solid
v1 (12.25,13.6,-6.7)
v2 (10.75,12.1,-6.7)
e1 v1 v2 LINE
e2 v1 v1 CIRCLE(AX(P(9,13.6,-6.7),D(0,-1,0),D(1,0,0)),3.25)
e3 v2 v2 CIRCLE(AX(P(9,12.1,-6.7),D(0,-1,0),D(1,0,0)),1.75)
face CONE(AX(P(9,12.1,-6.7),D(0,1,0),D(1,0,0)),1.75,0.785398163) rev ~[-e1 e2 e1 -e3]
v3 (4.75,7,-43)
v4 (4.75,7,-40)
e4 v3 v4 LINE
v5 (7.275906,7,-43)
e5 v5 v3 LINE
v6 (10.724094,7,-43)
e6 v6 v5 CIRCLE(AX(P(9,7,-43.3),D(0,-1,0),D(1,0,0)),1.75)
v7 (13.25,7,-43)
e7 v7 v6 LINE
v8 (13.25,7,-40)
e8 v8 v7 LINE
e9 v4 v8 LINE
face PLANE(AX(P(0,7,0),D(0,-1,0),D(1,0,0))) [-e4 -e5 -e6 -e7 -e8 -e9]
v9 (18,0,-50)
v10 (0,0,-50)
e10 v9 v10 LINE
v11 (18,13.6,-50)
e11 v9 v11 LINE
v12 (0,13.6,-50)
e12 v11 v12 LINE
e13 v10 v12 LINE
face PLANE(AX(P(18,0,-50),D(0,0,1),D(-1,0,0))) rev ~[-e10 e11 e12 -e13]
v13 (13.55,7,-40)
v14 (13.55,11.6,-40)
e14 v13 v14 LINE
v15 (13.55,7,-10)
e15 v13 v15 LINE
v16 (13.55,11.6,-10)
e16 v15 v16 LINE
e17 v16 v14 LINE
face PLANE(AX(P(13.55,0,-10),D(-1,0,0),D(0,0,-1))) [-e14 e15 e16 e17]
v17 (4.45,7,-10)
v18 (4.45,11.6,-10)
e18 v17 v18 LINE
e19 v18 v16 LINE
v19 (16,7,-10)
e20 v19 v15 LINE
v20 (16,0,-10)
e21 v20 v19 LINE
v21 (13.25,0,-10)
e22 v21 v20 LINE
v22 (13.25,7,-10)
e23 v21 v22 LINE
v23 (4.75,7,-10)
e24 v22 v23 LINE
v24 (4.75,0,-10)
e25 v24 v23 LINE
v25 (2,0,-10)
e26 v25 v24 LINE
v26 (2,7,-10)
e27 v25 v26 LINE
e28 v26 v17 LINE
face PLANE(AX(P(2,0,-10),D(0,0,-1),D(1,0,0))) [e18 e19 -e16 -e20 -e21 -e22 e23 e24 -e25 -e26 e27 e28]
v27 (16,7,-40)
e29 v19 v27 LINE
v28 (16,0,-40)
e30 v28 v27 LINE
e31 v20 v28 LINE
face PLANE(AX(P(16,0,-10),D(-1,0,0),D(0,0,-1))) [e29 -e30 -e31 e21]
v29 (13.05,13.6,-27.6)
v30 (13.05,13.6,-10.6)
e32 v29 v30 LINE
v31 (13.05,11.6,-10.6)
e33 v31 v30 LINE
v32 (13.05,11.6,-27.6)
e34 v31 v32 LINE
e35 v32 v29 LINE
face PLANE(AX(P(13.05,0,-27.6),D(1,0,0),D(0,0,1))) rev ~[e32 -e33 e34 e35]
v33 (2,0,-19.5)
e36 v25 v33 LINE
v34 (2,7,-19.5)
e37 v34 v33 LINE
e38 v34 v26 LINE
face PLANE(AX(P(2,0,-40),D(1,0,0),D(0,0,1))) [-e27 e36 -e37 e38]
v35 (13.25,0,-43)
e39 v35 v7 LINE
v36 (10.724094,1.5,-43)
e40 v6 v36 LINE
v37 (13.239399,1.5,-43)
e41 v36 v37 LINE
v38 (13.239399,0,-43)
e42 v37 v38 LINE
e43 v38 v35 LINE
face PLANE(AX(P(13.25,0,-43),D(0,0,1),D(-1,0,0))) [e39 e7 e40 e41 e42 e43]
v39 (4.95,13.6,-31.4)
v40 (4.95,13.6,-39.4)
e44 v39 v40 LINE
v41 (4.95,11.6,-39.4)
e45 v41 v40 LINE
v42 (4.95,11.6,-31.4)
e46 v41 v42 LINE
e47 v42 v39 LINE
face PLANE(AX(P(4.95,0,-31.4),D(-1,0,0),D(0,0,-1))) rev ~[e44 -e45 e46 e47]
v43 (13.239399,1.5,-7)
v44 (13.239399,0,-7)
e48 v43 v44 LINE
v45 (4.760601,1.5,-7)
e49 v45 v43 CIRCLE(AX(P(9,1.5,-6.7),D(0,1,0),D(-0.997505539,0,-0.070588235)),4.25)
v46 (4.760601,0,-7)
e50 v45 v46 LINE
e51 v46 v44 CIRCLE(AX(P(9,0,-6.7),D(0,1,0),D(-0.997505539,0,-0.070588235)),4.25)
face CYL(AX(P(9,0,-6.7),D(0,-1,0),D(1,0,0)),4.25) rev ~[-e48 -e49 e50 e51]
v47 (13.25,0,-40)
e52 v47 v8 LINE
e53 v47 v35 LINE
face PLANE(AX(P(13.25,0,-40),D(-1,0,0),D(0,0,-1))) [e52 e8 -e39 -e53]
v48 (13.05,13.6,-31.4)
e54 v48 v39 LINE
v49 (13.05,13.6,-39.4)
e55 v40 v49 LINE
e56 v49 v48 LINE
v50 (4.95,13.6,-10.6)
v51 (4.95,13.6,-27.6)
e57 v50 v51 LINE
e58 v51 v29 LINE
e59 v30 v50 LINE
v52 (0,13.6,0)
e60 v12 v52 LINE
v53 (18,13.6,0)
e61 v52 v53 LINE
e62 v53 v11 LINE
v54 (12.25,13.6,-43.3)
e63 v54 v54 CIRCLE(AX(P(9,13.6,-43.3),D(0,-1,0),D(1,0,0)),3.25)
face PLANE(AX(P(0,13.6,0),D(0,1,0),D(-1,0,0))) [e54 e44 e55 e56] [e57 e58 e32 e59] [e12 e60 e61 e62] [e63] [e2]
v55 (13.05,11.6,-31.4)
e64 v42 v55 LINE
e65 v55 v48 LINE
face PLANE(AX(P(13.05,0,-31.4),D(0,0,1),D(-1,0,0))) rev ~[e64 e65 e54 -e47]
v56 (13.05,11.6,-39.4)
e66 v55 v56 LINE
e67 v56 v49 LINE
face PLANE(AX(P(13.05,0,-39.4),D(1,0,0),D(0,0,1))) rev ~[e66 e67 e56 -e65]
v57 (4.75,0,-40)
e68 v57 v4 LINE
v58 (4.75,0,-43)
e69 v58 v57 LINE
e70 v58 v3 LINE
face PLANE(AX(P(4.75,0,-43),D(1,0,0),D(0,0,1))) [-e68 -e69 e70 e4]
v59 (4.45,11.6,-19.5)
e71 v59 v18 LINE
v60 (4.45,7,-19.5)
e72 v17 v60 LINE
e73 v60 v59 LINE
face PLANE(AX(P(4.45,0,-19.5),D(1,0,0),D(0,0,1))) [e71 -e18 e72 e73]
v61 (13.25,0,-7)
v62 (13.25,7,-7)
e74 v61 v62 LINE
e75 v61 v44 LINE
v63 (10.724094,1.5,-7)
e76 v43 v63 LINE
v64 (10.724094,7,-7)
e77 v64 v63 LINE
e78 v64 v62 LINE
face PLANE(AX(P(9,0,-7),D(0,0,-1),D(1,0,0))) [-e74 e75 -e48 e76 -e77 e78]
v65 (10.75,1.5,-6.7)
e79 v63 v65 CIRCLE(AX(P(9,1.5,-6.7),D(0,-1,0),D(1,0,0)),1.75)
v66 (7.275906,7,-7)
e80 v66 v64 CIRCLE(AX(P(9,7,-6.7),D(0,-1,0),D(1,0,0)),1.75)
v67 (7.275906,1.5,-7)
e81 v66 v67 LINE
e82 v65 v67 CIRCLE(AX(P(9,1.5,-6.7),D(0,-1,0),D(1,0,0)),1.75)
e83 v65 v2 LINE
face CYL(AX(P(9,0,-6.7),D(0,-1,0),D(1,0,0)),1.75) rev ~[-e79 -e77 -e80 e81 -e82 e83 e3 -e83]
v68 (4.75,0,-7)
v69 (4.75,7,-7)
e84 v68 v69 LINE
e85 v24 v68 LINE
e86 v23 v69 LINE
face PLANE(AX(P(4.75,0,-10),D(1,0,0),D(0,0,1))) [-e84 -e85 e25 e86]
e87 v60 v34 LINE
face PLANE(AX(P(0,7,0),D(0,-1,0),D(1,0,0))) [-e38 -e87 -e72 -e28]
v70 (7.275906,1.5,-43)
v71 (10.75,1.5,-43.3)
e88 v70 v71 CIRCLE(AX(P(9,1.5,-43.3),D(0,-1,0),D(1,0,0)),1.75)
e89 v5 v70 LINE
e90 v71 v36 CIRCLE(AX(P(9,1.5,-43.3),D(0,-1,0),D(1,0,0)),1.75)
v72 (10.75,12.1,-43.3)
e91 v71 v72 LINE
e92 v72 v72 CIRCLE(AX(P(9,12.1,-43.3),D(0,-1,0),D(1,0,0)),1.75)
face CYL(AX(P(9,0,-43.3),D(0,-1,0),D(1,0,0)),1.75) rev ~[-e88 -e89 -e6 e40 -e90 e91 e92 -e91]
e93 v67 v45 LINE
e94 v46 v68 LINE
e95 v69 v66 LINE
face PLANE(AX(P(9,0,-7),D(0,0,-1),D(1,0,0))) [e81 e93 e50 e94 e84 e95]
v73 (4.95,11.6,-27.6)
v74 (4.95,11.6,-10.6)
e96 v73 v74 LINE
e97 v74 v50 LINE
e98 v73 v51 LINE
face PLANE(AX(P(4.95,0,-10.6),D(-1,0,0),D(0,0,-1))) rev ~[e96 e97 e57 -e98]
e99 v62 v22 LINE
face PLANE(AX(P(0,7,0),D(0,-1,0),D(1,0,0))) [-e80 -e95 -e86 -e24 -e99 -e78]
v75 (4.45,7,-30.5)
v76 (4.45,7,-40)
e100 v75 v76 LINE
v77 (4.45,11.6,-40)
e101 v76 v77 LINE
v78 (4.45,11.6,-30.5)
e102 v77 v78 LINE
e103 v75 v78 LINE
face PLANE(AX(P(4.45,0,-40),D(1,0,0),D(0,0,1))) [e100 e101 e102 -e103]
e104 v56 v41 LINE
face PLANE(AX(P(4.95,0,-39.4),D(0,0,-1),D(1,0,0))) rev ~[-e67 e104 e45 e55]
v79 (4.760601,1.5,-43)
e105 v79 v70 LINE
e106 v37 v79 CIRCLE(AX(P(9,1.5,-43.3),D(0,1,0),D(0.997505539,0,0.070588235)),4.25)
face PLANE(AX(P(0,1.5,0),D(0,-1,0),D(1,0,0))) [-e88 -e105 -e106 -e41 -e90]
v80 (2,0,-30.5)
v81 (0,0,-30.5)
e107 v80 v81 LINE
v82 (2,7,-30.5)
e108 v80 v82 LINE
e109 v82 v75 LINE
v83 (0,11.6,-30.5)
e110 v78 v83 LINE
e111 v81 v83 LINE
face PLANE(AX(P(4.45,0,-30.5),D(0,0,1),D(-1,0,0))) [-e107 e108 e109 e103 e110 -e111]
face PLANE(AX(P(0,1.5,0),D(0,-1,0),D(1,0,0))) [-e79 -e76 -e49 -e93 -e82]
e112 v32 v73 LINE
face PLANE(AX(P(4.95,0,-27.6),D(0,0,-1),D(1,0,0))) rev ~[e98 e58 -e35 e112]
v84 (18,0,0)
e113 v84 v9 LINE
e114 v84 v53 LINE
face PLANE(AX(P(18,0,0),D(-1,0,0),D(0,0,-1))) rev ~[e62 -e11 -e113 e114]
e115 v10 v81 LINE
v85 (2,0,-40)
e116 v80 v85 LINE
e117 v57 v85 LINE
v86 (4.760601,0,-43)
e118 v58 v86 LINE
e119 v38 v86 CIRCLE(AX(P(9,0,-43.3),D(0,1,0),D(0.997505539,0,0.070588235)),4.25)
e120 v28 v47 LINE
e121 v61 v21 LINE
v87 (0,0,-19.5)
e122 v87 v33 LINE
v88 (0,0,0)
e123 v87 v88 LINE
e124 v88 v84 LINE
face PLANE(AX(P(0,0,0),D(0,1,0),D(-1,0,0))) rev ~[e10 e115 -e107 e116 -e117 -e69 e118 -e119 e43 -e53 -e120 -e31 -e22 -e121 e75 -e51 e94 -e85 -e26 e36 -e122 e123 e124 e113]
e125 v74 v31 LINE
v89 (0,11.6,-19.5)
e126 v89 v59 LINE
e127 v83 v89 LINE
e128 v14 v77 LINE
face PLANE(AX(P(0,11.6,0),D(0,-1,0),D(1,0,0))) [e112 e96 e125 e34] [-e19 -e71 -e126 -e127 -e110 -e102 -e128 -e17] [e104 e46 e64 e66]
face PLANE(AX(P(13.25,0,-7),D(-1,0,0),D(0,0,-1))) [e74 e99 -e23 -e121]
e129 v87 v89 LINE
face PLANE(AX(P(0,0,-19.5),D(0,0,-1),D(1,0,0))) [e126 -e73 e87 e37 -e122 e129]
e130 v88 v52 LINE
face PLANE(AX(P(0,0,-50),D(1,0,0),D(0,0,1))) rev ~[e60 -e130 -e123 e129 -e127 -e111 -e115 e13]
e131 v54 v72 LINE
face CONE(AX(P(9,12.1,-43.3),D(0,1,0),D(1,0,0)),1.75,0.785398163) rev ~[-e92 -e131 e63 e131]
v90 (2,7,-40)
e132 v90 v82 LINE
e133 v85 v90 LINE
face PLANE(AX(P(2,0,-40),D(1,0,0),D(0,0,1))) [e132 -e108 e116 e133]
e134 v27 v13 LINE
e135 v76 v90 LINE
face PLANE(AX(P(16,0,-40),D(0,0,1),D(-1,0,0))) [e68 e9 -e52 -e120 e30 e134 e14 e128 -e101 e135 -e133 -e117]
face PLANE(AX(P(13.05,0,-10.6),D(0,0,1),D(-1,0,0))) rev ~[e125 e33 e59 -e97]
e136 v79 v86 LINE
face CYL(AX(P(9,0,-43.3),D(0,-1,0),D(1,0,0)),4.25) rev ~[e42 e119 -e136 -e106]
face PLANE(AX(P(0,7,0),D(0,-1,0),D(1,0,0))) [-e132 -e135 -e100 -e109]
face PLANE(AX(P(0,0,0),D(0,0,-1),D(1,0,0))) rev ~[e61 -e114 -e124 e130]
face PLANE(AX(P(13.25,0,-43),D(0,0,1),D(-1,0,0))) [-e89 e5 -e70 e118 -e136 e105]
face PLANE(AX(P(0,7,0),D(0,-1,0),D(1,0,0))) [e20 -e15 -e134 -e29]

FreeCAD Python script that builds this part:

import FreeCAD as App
import Part
import Sketcher
from FreeCAD import Vector
Q = App.Units.Quantity


def edges_at(feature, points):
    """Names of the edges that pass closest to the given points."""
    edges = feature.Shape.Edges
    near = lambda p: min(range(len(edges)), key=lambda i: edges[i].distToShape(Part.Vertex(*p))[0])
    return sorted({f"Edge{near(p) + 1}" for p in points})

doc = App.newDocument("Part")
body = doc.addObject("PartDesign::Body", "Body")

# Sketch on XZ plane
sketch1 = body.newObject("Sketcher::SketchObject", "Sketch")
sketch1.AttachmentSupport = (doc.getObject("XZ_Plane"), [""])
sketch1.MapMode = "FlatFace"
sketch1.addGeometry([
    Part.LineSegment(Vector(0, -50, 0), Vector(0, 0, 0)),
    Part.LineSegment(Vector(0, 0, 0), Vector(18, 0, 0)),
    Part.LineSegment(Vector(18, 0, 0), Vector(18, -50, 0)),
    Part.LineSegment(Vector(18, -50, 0), Vector(0, -50, 0)),
], False)
sketch1.addConstraint([
    Sketcher.Constraint("Coincident", 0, 2, 1, 1),
    Sketcher.Constraint("Coincident", 1, 2, 2, 1),
    Sketcher.Constraint("Coincident", 2, 2, 3, 1),
    Sketcher.Constraint("Coincident", 3, 2, 0, 1),
    Sketcher.Constraint("Vertical", 0),
    Sketcher.Constraint("Horizontal", 1),
    Sketcher.Constraint("Vertical", 2),
    Sketcher.Constraint("Horizontal", 3),
    Sketcher.Constraint("Coincident", 0, 2, -1, 1),
    Sketcher.Constraint("DistanceX", 1, 1, 1, 2, Q("18 mm")),
    Sketcher.Constraint("DistanceY", 0, 1, 0, 2, Q("50 mm")),
])
pad1 = body.newObject("PartDesign::Pad", "Pad")
pad1.Profile = sketch1
pad1.Length = 13.6
pad1.Reversed = True

# Sketch on XZ plane
sketch2 = body.newObject("Sketcher::SketchObject", "Sketch001")
sketch2.AttachmentSupport = (doc.getObject("XZ_Plane"), [""])
sketch2.MapMode = "FlatFace"
sketch2.addGeometry([
    Part.LineSegment(Vector(13.05, -27.6, 0), Vector(13.05, -10.6, 0)),  # 0
    Part.LineSegment(Vector(13.05, -10.6, 0), Vector(4.95, -10.6, 0)),  # 1
    Part.LineSegment(Vector(4.95, -10.6, 0), Vector(4.95, -27.6, 0)),  # 2
    Part.LineSegment(Vector(4.95, -27.6, 0), Vector(13.05, -27.6, 0)),  # 3
    Part.LineSegment(Vector(4.95, -31.4, 0), Vector(4.95, -39.4, 0)),  # 4
    Part.LineSegment(Vector(4.95, -39.4, 0), Vector(13.05, -39.4, 0)),  # 5
    Part.LineSegment(Vector(13.05, -39.4, 0), Vector(13.05, -31.4, 0)),  # 6
    Part.LineSegment(Vector(13.05, -31.4, 0), Vector(4.95, -31.4, 0)),  # 7
], False)
sketch2.addConstraint([
    Sketcher.Constraint("Coincident", 0, 2, 1, 1),
    Sketcher.Constraint("Coincident", 1, 2, 2, 1),
    Sketcher.Constraint("Coincident", 2, 2, 3, 1),
    Sketcher.Constraint("Coincident", 3, 2, 0, 1),
    Sketcher.Constraint("Coincident", 4, 2, 5, 1),
    Sketcher.Constraint("Coincident", 5, 2, 6, 1),
    Sketcher.Constraint("Coincident", 6, 2, 7, 1),
    Sketcher.Constraint("Coincident", 7, 2, 4, 1),
    Sketcher.Constraint("Vertical", 0),
    Sketcher.Constraint("Horizontal", 1),
    Sketcher.Constraint("Vertical", 2),
    Sketcher.Constraint("Horizontal", 3),
    Sketcher.Constraint("Vertical", 4),
    Sketcher.Constraint("Horizontal", 5),
    Sketcher.Constraint("Vertical", 6),
    Sketcher.Constraint("Horizontal", 7),
    Sketcher.Constraint("Vertical", 2, 2, 4, 2),
    Sketcher.Constraint("Vertical", 3, 2, 5, 2),
    Sketcher.Constraint("DistanceY", 0, 1, 0, 2, Q("17 mm")),
    Sketcher.Constraint("DistanceY", 4, 2, 4, 1, Q("8 mm")),
    Sketcher.Constraint("DistanceX", 1, 2, 1, 1, Q("8.1 mm")),
    Sketcher.Constraint("DistanceY", 4, 2, 1, 2, Q("28.8 mm")),
    Sketcher.Constraint("DistanceY", 0, 2, -1, 1, Q("10.6 mm")),
    Sketcher.Constraint("DistanceX", -1, 1, 0, 2, Q("13.05 mm")),
])
pocket1 = body.newObject("PartDesign::Pocket", "Pocket")
pocket1.Profile = sketch2
pocket1.Length = 13.6

# Sketch on XZ plane
sketch3 = body.newObject("Sketcher::SketchObject", "Sketch002")
sketch3.AttachmentSupport = (doc.getObject("XZ_Plane"), [""])
sketch3.MapMode = "FlatFace"
sketch3.addGeometry([
    Part.Circle(Vector(9, -43.3, 0), Vector(0, 0, 1), 1.75),
    Part.Circle(Vector(9, -6.7, 0), Vector(0, 0, 1), 1.75),
], False)
sketch3.addConstraint([
    Sketcher.Constraint("Equal", 0, 1),
    Sketcher.Constraint("Vertical", 0, 3, 1, 3),
    Sketcher.Constraint("Diameter", 0, Q("3.5 mm")),
    Sketcher.Constraint("DistanceX", -1, 1, 0, 3, Q("9 mm")),
    Sketcher.Constraint("DistanceY", 0, 3, -1, 1, Q("43.3 mm")),
    Sketcher.Constraint("DistanceY", 1, 3, -1, 1, Q("6.7 mm")),
])
pocket2 = body.newObject("PartDesign::Pocket", "Pocket001")
pocket2.Profile = sketch3
pocket2.Length = 13.6

# Sketch on XZ plane
sketch4 = body.newObject("Sketcher::SketchObject", "Sketch003")
sketch4.AttachmentSupport = (doc.getObject("XZ_Plane"), [""])
sketch4.MapMode = "FlatFace"
sketch4.addGeometry([
    Part.LineSegment(Vector(13.55, -40, 0), Vector(13.55, -10, 0)),  # 0
    Part.LineSegment(Vector(13.55, -10, 0), Vector(4.45, -10, 0)),  # 1
    Part.LineSegment(Vector(4.45, -10, 0), Vector(4.45, -19.5, 0)),  # 2
    Part.LineSegment(Vector(4.45, -19.5, 0), Vector(0, -19.5, 0)),  # 3
    Part.LineSegment(Vector(0, -19.5, 0), Vector(0, -30.5, 0)),  # 4
    Part.LineSegment(Vector(0, -30.5, 0), Vector(4.45, -30.5, 0)),  # 5
    Part.LineSegment(Vector(4.45, -30.5, 0), Vector(4.45, -40, 0)),  # 6
    Part.LineSegment(Vector(4.45, -40, 0), Vector(13.55, -40, 0)),  # 7
], False)
sketch4.addConstraint([
    Sketcher.Constraint("Coincident", 0, 2, 1, 1),
    Sketcher.Constraint("Coincident", 1, 2, 2, 1),
    Sketcher.Constraint("Coincident", 2, 2, 3, 1),
    Sketcher.Constraint("Coincident", 3, 2, 4, 1),
    Sketcher.Constraint("Coincident", 4, 2, 5, 1),
    Sketcher.Constraint("Coincident", 5, 2, 6, 1),
    Sketcher.Constraint("Coincident", 6, 2, 7, 1),
    Sketcher.Constraint("Coincident", 7, 2, 0, 1),
    Sketcher.Constraint("Vertical", 0),
    Sketcher.Constraint("Horizontal", 1),
    Sketcher.Constraint("Vertical", 2),
    Sketcher.Constraint("Horizontal", 3),
    Sketcher.Constraint("Vertical", 4),
    Sketcher.Constraint("Horizontal", 5),
    Sketcher.Constraint("Vertical", 6),
    Sketcher.Constraint("Horizontal", 7),
    Sketcher.Constraint("PointOnObject", 3, 2, -2),
    Sketcher.Constraint("Vertical", 2, 2, 5, 2),
    Sketcher.Constraint("Equal", 2, 6),
    Sketcher.Constraint("DistanceY", 0, 1, 0, 2, Q("30 mm")),
    Sketcher.Constraint("DistanceY", 4, 2, 4, 1, Q("11 mm")),
    Sketcher.Constraint("DistanceX", 1, 2, 1, 1, Q("9.1 mm")),
    Sketcher.Constraint("DistanceY", 0, 2, -1, 1, Q("10 mm")),
    Sketcher.Constraint("DistanceX", 3, 2, 3, 1, Q("4.45 mm")),
])
pocket3 = body.newObject("PartDesign::Pocket", "Pocket002")
pocket3.Profile = sketch4
pocket3.Length = 11.6

# Sketch on XZ plane
sketch5 = body.newObject("Sketcher::SketchObject", "Sketch004")
sketch5.AttachmentSupport = (doc.getObject("XZ_Plane"), [""])
sketch5.MapMode = "FlatFace"
sketch5.addGeometry([
    Part.LineSegment(Vector(16, -40, 0), Vector(16, -10, 0)),  # 0
    Part.LineSegment(Vector(16, -10, 0), Vector(13.25, -10, 0)),  # 1
    Part.LineSegment(Vector(13.25, -10, 0), Vector(13.25, -7, 0)),  # 2
    Part.LineSegment(Vector(13.25, -7, 0), Vector(4.75, -7, 0)),  # 3
    Part.LineSegment(Vector(4.75, -7, 0), Vector(4.75, -10, 0)),  # 4
    Part.LineSegment(Vector(4.75, -10, 0), Vector(2, -10, 0)),  # 5
    Part.LineSegment(Vector(2, -10, 0), Vector(2, -40, 0)),  # 6
    Part.LineSegment(Vector(2, -40, 0), Vector(4.75, -40, 0)),  # 7
    Part.LineSegment(Vector(4.75, -40, 0), Vector(4.75, -43, 0)),  # 8
    Part.LineSegment(Vector(4.75, -43, 0), Vector(13.25, -43, 0)),  # 9
    Part.LineSegment(Vector(13.25, -43, 0), Vector(13.25, -40, 0)),  # 10
    Part.LineSegment(Vector(13.25, -40, 0), Vector(16, -40, 0)),  # 11
], False)
sketch5.addConstraint([
    Sketcher.Constraint("Coincident", 0, 2, 1, 1),
    Sketcher.Constraint("Coincident", 1, 2, 2, 1),
    Sketcher.Constraint("Coincident", 2, 2, 3, 1),
    Sketcher.Constraint("Coincident", 3, 2, 4, 1),
    Sketcher.Constraint("Coincident", 4, 2, 5, 1),
    Sketcher.Constraint("Coincident", 5, 2, 6, 1),
    Sketcher.Constraint("Coincident", 6, 2, 7, 1),
    Sketcher.Constraint("Coincident", 7, 2, 8, 1),
    Sketcher.Constraint("Coincident", 8, 2, 9, 1),
    Sketcher.Constraint("Coincident", 9, 2, 10, 1),
    Sketcher.Constraint("Coincident", 10, 2, 11, 1),
    Sketcher.Constraint("Coincident", 11, 2, 0, 1),
    Sketcher.Constraint("Vertical", 0),
    Sketcher.Constraint("Horizontal", 1),
    Sketcher.Constraint("Vertical", 2),
    Sketcher.Constraint("Horizontal", 3),
    Sketcher.Constraint("Vertical", 4),
    Sketcher.Constraint("Horizontal", 5),
    Sketcher.Constraint("Vertical", 6),
    Sketcher.Constraint("Horizontal", 7),
    Sketcher.Constraint("Vertical", 8),
    Sketcher.Constraint("Horizontal", 9),
    Sketcher.Constraint("Vertical", 10),
    Sketcher.Constraint("Horizontal", 11),
    Sketcher.Constraint("Horizontal", 1, 2, 4, 2),
    Sketcher.Constraint("Horizontal", 7, 2, 10, 2),
    Sketcher.Constraint("Vertical", 4, 2, 7, 2),
    Sketcher.Constraint("Vertical", 2, 2, 9, 2),
    Sketcher.Constraint("Equal", 1, 5),
    Sketcher.Constraint("Equal", 4, 8),
    Sketcher.Constraint("DistanceX", 3, 2, 3, 1, Q("8.5 mm")),
    Sketcher.Constraint("DistanceX", 5, 2, 0, 2, Q("14 mm")),
    Sketcher.Constraint("DistanceY", 0, 1, 0, 2, Q("30 mm")),
    Sketcher.Constraint("DistanceY", 2, 1, 2, 2, Q("3 mm")),
    Sketcher.Constraint("DistanceX", -1, 1, 0, 2, Q("16 mm")),
    Sketcher.Constraint("DistanceY", 0, 2, -1, 1, Q("10 mm")),
])
pocket4 = body.newObject("PartDesign::Pocket", "Pocket003")
pocket4.Profile = sketch5
pocket4.Length = 7

# Sketch on XZ plane
sketch6 = body.newObject("Sketcher::SketchObject", "Sketch005")
sketch6.AttachmentSupport = (doc.getObject("XZ_Plane"), [""])
sketch6.MapMode = "FlatFace"
sketch6.addGeometry([
    Part.Circle(Vector(9, -6.7, 0), Vector(0, 0, 1), 4.25),
    Part.Circle(Vector(9, -43.3, 0), Vector(0, 0, 1), 4.25),
], False)
sketch6.addConstraint([
    Sketcher.Constraint("Equal", 0, 1),
    Sketcher.Constraint("Vertical", 0, 3, 1, 3),
    Sketcher.Constraint("Diameter", 0, Q("8.5 mm")),
    Sketcher.Constraint("DistanceX", -1, 1, 0, 3, Q("9 mm")),
    Sketcher.Constraint("DistanceY", 0, 3, -1, 1, Q("6.7 mm")),
    Sketcher.Constraint("DistanceY", 1, 3, -1, 1, Q("43.3 mm")),
])
pocket5 = body.newObject("PartDesign::Pocket", "Pocket004")
pocket5.Profile = sketch6
pocket5.Length = 1.5
doc.recompute()

chamfer = body.newObject("PartDesign::Chamfer", "Chamfer")
chamfer.Base = (pocket5, edges_at(pocket5, [(7.25, 13.6, -6.7)]))
chamfer.Size = 1.5
doc.recompute()

chamfer2 = body.newObject("PartDesign::Chamfer", "Chamfer001")
chamfer2.Base = (chamfer, edges_at(chamfer, [(7.25, 13.6, -43.3)]))
chamfer2.Size = 1.5

doc.recompute()
